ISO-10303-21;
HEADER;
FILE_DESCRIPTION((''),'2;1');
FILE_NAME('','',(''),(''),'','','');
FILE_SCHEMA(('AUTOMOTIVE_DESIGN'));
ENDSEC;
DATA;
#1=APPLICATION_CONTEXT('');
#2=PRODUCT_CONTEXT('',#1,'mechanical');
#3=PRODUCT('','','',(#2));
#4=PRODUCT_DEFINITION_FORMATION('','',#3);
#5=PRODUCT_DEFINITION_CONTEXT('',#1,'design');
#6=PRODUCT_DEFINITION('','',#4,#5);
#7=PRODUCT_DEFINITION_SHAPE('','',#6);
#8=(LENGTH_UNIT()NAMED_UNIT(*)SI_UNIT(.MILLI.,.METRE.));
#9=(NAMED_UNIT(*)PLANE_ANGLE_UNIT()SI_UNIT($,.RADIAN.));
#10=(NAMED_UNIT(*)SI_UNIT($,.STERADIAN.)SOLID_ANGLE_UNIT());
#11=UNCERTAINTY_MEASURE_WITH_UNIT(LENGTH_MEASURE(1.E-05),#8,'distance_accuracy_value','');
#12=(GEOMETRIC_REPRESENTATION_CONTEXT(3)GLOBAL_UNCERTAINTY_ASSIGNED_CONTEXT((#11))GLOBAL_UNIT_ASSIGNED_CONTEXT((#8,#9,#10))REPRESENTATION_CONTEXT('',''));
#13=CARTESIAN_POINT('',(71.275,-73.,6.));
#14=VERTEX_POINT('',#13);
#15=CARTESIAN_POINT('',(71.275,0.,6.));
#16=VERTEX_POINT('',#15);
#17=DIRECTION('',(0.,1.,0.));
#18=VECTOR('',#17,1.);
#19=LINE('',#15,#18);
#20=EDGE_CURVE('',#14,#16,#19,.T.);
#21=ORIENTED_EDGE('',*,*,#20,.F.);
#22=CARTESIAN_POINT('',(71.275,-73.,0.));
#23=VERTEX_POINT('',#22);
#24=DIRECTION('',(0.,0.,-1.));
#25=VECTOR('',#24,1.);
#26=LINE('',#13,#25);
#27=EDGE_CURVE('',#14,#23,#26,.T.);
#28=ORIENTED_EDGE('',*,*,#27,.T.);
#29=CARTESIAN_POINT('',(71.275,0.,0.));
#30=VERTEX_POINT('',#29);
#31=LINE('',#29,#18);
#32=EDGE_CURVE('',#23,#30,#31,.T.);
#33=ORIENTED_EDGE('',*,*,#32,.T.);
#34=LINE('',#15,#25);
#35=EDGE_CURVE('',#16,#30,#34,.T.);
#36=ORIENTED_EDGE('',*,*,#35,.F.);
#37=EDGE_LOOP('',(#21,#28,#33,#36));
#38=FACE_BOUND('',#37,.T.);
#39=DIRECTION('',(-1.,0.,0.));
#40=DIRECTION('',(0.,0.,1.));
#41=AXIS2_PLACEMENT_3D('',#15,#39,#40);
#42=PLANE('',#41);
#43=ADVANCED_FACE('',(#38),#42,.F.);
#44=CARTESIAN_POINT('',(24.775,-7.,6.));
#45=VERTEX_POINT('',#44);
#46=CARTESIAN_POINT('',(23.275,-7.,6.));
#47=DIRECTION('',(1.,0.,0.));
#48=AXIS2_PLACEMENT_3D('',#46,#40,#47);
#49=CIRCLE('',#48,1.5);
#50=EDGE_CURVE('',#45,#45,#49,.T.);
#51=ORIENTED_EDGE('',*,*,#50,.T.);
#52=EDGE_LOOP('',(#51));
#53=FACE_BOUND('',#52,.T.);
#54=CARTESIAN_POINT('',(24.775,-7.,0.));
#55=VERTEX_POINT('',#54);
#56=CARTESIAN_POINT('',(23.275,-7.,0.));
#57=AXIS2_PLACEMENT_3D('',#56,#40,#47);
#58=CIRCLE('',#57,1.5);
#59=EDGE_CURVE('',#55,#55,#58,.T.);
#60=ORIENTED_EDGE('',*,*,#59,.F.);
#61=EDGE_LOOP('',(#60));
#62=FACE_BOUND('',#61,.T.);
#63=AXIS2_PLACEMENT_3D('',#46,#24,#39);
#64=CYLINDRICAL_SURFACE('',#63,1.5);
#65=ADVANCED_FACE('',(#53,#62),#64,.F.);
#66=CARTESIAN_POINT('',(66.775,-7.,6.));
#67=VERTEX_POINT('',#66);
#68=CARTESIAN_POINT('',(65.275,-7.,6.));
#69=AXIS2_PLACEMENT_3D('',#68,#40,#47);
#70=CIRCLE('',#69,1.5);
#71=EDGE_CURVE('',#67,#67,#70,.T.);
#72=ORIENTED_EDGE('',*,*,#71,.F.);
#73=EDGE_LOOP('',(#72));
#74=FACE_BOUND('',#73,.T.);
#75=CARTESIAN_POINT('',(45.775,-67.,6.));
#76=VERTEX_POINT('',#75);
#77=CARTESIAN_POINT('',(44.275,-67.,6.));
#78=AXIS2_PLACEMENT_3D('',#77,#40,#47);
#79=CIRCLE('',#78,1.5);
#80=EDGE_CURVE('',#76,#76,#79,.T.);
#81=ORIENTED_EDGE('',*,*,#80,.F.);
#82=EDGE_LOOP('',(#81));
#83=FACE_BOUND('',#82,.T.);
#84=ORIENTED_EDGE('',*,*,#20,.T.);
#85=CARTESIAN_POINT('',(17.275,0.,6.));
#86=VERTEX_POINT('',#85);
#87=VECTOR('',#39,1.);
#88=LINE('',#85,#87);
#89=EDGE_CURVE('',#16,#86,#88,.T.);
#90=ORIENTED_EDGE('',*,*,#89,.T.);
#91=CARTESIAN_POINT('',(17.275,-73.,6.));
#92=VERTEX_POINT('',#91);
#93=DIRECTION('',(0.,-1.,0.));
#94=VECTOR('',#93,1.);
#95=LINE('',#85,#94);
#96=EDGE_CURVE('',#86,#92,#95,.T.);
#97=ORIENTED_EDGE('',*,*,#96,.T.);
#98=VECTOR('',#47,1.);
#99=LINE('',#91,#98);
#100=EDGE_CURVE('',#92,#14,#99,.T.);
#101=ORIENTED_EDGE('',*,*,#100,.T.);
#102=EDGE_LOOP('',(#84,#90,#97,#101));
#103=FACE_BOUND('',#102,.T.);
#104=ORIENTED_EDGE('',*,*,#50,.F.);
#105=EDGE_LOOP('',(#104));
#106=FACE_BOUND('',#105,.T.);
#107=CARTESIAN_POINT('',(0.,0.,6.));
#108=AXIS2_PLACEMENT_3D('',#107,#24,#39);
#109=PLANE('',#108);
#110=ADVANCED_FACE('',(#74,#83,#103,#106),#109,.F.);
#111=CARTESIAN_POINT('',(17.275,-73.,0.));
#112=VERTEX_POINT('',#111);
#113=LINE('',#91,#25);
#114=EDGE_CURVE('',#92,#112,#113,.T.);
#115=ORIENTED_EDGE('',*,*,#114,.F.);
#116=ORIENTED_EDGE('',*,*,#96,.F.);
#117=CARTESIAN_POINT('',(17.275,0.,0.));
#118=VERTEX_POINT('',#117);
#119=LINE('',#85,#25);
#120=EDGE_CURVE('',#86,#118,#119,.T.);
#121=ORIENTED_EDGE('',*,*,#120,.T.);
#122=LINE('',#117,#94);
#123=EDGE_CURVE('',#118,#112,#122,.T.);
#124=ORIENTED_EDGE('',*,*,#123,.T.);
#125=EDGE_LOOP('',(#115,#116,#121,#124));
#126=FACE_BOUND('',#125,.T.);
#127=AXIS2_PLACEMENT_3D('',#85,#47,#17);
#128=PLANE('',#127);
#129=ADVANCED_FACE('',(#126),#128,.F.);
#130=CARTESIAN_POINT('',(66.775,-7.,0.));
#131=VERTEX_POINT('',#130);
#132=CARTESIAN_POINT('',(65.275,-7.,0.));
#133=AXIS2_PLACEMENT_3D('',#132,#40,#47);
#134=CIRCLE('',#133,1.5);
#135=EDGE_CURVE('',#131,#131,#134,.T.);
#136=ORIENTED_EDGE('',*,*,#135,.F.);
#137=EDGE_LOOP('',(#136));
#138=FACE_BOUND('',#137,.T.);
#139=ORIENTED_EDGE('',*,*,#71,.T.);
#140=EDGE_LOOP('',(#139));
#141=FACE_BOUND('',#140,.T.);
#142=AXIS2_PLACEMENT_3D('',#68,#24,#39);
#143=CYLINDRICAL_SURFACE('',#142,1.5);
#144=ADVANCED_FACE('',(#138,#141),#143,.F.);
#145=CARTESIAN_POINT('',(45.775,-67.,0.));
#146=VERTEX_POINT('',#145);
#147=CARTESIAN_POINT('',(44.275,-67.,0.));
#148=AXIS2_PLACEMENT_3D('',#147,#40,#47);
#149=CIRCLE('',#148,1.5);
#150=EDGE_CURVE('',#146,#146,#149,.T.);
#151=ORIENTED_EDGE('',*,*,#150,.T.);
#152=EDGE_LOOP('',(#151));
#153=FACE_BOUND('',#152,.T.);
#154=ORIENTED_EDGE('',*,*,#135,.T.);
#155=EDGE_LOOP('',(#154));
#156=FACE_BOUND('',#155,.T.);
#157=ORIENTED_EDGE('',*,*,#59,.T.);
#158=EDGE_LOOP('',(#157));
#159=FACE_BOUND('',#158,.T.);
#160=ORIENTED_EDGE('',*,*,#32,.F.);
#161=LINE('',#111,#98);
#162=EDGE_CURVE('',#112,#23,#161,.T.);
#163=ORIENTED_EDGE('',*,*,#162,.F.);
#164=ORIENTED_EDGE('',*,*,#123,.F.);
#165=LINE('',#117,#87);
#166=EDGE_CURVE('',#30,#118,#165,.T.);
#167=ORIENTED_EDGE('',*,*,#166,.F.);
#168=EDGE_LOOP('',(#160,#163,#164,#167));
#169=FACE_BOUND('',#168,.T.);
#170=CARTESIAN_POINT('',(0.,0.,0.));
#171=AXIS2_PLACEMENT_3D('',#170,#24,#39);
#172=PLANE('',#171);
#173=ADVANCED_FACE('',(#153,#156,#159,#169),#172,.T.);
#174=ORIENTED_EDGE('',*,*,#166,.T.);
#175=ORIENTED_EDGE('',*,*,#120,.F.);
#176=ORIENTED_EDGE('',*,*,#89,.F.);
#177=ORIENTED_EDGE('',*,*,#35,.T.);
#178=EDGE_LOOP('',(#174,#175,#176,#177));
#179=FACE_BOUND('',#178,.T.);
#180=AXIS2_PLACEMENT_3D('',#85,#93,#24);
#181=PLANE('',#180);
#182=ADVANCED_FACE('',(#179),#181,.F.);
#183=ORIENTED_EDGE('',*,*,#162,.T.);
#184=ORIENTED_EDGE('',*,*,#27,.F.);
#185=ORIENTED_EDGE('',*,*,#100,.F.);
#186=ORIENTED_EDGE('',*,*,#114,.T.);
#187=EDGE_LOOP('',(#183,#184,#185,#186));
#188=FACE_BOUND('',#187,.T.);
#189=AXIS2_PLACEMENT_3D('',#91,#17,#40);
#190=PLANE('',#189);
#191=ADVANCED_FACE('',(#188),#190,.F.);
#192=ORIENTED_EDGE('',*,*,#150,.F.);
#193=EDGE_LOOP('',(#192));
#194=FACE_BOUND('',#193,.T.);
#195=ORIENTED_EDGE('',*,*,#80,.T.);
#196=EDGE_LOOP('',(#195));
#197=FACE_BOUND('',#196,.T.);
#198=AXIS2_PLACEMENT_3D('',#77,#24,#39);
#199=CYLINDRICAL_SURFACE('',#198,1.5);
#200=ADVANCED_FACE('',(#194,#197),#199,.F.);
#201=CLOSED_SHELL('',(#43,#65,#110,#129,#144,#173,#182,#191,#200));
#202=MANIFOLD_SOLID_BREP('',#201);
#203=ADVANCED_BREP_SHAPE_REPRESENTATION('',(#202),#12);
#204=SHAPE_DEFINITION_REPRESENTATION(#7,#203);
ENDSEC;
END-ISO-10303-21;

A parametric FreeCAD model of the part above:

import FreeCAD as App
import Part
import Sketcher
Q = App.Units.Quantity


def add_polygon(sketch, points):
    """Adds a closed chain of lines whose ends are joined by coincident constraints."""
    first, n = sketch.GeometryCount, len(points)
    for a, b in zip(points, points[1:] + points[:1]):
        sketch.addGeometry(Part.LineSegment(App.Vector(*a, 0), App.Vector(*b, 0)), False)
    for i in range(n):
        sketch.addConstraint(Sketcher.Constraint("Coincident", first + i, 2, first + (i + 1) % n, 1))

doc = App.newDocument("Part")
body = doc.addObject("PartDesign::Body", "Body")

# Sketch on XY plane
sketch1 = doc.addObject("Sketcher::SketchObject", "Sketch")
body.addObject(sketch1)
sketch1.AttachmentSupport = (doc.XY_Plane, [""])
sketch1.MapMode = "FlatFace"
add_polygon(sketch1, [(17.275, 0), (17.275, -73), (71.275, -73), (71.275, 0)])  # lines 0-3
sketch1.addGeometry(Part.Circle(App.Vector(44.275, -67, 0), App.Vector(0, 0, 1), 1.5), False)  # 4
sketch1.addGeometry(Part.Circle(App.Vector(23.275, -7, 0), App.Vector(0, 0, 1), 1.5), False)  # 5
sketch1.addGeometry(Part.Circle(App.Vector(65.275, -7, 0), App.Vector(0, 0, 1), 1.5), False)  # 6
sketch1.addConstraint([
    Sketcher.Constraint("Vertical", 0),
    Sketcher.Constraint("Horizontal", 1),
    Sketcher.Constraint("Vertical", 2),
    Sketcher.Constraint("Horizontal", 3),
    Sketcher.Constraint("Equal", 4, 5),
    Sketcher.Constraint("Equal", 5, 6),
    Sketcher.Constraint("PointOnObject", 2, 2, -1),
    Sketcher.Constraint("Horizontal", 5, 3, 6, 3),
    Sketcher.Constraint("Diameter", 4, Q("3 mm")),
    Sketcher.Constraint("DistanceX", 1, 1, 1, 2, Q("54 mm")),
    Sketcher.Constraint("DistanceY", 0, 2, 0, 1, Q("73 mm")),
    Sketcher.Constraint("DistanceY", 4, 3, -1, 1, Q("67 mm")),
    Sketcher.Constraint("DistanceY", 5, 3, -1, 1, Q("7 mm")),
    Sketcher.Constraint("DistanceX", 5, 3, 4, 3, Q("21 mm")),
    Sketcher.Constraint("DistanceX", 5, 3, 6, 3, Q("42 mm")),
    Sketcher.Constraint("DistanceX", 0, 2, 4, 3, Q("27 mm")),
    Sketcher.Constraint("DistanceX", -1, 1, 4, 3, Q("44.275 mm")),
])
pad1 = doc.addObject("PartDesign::Pad", "Pad")
body.addObject(pad1)
pad1.Profile = sketch1
pad1.Length = 6

doc.recompute()
